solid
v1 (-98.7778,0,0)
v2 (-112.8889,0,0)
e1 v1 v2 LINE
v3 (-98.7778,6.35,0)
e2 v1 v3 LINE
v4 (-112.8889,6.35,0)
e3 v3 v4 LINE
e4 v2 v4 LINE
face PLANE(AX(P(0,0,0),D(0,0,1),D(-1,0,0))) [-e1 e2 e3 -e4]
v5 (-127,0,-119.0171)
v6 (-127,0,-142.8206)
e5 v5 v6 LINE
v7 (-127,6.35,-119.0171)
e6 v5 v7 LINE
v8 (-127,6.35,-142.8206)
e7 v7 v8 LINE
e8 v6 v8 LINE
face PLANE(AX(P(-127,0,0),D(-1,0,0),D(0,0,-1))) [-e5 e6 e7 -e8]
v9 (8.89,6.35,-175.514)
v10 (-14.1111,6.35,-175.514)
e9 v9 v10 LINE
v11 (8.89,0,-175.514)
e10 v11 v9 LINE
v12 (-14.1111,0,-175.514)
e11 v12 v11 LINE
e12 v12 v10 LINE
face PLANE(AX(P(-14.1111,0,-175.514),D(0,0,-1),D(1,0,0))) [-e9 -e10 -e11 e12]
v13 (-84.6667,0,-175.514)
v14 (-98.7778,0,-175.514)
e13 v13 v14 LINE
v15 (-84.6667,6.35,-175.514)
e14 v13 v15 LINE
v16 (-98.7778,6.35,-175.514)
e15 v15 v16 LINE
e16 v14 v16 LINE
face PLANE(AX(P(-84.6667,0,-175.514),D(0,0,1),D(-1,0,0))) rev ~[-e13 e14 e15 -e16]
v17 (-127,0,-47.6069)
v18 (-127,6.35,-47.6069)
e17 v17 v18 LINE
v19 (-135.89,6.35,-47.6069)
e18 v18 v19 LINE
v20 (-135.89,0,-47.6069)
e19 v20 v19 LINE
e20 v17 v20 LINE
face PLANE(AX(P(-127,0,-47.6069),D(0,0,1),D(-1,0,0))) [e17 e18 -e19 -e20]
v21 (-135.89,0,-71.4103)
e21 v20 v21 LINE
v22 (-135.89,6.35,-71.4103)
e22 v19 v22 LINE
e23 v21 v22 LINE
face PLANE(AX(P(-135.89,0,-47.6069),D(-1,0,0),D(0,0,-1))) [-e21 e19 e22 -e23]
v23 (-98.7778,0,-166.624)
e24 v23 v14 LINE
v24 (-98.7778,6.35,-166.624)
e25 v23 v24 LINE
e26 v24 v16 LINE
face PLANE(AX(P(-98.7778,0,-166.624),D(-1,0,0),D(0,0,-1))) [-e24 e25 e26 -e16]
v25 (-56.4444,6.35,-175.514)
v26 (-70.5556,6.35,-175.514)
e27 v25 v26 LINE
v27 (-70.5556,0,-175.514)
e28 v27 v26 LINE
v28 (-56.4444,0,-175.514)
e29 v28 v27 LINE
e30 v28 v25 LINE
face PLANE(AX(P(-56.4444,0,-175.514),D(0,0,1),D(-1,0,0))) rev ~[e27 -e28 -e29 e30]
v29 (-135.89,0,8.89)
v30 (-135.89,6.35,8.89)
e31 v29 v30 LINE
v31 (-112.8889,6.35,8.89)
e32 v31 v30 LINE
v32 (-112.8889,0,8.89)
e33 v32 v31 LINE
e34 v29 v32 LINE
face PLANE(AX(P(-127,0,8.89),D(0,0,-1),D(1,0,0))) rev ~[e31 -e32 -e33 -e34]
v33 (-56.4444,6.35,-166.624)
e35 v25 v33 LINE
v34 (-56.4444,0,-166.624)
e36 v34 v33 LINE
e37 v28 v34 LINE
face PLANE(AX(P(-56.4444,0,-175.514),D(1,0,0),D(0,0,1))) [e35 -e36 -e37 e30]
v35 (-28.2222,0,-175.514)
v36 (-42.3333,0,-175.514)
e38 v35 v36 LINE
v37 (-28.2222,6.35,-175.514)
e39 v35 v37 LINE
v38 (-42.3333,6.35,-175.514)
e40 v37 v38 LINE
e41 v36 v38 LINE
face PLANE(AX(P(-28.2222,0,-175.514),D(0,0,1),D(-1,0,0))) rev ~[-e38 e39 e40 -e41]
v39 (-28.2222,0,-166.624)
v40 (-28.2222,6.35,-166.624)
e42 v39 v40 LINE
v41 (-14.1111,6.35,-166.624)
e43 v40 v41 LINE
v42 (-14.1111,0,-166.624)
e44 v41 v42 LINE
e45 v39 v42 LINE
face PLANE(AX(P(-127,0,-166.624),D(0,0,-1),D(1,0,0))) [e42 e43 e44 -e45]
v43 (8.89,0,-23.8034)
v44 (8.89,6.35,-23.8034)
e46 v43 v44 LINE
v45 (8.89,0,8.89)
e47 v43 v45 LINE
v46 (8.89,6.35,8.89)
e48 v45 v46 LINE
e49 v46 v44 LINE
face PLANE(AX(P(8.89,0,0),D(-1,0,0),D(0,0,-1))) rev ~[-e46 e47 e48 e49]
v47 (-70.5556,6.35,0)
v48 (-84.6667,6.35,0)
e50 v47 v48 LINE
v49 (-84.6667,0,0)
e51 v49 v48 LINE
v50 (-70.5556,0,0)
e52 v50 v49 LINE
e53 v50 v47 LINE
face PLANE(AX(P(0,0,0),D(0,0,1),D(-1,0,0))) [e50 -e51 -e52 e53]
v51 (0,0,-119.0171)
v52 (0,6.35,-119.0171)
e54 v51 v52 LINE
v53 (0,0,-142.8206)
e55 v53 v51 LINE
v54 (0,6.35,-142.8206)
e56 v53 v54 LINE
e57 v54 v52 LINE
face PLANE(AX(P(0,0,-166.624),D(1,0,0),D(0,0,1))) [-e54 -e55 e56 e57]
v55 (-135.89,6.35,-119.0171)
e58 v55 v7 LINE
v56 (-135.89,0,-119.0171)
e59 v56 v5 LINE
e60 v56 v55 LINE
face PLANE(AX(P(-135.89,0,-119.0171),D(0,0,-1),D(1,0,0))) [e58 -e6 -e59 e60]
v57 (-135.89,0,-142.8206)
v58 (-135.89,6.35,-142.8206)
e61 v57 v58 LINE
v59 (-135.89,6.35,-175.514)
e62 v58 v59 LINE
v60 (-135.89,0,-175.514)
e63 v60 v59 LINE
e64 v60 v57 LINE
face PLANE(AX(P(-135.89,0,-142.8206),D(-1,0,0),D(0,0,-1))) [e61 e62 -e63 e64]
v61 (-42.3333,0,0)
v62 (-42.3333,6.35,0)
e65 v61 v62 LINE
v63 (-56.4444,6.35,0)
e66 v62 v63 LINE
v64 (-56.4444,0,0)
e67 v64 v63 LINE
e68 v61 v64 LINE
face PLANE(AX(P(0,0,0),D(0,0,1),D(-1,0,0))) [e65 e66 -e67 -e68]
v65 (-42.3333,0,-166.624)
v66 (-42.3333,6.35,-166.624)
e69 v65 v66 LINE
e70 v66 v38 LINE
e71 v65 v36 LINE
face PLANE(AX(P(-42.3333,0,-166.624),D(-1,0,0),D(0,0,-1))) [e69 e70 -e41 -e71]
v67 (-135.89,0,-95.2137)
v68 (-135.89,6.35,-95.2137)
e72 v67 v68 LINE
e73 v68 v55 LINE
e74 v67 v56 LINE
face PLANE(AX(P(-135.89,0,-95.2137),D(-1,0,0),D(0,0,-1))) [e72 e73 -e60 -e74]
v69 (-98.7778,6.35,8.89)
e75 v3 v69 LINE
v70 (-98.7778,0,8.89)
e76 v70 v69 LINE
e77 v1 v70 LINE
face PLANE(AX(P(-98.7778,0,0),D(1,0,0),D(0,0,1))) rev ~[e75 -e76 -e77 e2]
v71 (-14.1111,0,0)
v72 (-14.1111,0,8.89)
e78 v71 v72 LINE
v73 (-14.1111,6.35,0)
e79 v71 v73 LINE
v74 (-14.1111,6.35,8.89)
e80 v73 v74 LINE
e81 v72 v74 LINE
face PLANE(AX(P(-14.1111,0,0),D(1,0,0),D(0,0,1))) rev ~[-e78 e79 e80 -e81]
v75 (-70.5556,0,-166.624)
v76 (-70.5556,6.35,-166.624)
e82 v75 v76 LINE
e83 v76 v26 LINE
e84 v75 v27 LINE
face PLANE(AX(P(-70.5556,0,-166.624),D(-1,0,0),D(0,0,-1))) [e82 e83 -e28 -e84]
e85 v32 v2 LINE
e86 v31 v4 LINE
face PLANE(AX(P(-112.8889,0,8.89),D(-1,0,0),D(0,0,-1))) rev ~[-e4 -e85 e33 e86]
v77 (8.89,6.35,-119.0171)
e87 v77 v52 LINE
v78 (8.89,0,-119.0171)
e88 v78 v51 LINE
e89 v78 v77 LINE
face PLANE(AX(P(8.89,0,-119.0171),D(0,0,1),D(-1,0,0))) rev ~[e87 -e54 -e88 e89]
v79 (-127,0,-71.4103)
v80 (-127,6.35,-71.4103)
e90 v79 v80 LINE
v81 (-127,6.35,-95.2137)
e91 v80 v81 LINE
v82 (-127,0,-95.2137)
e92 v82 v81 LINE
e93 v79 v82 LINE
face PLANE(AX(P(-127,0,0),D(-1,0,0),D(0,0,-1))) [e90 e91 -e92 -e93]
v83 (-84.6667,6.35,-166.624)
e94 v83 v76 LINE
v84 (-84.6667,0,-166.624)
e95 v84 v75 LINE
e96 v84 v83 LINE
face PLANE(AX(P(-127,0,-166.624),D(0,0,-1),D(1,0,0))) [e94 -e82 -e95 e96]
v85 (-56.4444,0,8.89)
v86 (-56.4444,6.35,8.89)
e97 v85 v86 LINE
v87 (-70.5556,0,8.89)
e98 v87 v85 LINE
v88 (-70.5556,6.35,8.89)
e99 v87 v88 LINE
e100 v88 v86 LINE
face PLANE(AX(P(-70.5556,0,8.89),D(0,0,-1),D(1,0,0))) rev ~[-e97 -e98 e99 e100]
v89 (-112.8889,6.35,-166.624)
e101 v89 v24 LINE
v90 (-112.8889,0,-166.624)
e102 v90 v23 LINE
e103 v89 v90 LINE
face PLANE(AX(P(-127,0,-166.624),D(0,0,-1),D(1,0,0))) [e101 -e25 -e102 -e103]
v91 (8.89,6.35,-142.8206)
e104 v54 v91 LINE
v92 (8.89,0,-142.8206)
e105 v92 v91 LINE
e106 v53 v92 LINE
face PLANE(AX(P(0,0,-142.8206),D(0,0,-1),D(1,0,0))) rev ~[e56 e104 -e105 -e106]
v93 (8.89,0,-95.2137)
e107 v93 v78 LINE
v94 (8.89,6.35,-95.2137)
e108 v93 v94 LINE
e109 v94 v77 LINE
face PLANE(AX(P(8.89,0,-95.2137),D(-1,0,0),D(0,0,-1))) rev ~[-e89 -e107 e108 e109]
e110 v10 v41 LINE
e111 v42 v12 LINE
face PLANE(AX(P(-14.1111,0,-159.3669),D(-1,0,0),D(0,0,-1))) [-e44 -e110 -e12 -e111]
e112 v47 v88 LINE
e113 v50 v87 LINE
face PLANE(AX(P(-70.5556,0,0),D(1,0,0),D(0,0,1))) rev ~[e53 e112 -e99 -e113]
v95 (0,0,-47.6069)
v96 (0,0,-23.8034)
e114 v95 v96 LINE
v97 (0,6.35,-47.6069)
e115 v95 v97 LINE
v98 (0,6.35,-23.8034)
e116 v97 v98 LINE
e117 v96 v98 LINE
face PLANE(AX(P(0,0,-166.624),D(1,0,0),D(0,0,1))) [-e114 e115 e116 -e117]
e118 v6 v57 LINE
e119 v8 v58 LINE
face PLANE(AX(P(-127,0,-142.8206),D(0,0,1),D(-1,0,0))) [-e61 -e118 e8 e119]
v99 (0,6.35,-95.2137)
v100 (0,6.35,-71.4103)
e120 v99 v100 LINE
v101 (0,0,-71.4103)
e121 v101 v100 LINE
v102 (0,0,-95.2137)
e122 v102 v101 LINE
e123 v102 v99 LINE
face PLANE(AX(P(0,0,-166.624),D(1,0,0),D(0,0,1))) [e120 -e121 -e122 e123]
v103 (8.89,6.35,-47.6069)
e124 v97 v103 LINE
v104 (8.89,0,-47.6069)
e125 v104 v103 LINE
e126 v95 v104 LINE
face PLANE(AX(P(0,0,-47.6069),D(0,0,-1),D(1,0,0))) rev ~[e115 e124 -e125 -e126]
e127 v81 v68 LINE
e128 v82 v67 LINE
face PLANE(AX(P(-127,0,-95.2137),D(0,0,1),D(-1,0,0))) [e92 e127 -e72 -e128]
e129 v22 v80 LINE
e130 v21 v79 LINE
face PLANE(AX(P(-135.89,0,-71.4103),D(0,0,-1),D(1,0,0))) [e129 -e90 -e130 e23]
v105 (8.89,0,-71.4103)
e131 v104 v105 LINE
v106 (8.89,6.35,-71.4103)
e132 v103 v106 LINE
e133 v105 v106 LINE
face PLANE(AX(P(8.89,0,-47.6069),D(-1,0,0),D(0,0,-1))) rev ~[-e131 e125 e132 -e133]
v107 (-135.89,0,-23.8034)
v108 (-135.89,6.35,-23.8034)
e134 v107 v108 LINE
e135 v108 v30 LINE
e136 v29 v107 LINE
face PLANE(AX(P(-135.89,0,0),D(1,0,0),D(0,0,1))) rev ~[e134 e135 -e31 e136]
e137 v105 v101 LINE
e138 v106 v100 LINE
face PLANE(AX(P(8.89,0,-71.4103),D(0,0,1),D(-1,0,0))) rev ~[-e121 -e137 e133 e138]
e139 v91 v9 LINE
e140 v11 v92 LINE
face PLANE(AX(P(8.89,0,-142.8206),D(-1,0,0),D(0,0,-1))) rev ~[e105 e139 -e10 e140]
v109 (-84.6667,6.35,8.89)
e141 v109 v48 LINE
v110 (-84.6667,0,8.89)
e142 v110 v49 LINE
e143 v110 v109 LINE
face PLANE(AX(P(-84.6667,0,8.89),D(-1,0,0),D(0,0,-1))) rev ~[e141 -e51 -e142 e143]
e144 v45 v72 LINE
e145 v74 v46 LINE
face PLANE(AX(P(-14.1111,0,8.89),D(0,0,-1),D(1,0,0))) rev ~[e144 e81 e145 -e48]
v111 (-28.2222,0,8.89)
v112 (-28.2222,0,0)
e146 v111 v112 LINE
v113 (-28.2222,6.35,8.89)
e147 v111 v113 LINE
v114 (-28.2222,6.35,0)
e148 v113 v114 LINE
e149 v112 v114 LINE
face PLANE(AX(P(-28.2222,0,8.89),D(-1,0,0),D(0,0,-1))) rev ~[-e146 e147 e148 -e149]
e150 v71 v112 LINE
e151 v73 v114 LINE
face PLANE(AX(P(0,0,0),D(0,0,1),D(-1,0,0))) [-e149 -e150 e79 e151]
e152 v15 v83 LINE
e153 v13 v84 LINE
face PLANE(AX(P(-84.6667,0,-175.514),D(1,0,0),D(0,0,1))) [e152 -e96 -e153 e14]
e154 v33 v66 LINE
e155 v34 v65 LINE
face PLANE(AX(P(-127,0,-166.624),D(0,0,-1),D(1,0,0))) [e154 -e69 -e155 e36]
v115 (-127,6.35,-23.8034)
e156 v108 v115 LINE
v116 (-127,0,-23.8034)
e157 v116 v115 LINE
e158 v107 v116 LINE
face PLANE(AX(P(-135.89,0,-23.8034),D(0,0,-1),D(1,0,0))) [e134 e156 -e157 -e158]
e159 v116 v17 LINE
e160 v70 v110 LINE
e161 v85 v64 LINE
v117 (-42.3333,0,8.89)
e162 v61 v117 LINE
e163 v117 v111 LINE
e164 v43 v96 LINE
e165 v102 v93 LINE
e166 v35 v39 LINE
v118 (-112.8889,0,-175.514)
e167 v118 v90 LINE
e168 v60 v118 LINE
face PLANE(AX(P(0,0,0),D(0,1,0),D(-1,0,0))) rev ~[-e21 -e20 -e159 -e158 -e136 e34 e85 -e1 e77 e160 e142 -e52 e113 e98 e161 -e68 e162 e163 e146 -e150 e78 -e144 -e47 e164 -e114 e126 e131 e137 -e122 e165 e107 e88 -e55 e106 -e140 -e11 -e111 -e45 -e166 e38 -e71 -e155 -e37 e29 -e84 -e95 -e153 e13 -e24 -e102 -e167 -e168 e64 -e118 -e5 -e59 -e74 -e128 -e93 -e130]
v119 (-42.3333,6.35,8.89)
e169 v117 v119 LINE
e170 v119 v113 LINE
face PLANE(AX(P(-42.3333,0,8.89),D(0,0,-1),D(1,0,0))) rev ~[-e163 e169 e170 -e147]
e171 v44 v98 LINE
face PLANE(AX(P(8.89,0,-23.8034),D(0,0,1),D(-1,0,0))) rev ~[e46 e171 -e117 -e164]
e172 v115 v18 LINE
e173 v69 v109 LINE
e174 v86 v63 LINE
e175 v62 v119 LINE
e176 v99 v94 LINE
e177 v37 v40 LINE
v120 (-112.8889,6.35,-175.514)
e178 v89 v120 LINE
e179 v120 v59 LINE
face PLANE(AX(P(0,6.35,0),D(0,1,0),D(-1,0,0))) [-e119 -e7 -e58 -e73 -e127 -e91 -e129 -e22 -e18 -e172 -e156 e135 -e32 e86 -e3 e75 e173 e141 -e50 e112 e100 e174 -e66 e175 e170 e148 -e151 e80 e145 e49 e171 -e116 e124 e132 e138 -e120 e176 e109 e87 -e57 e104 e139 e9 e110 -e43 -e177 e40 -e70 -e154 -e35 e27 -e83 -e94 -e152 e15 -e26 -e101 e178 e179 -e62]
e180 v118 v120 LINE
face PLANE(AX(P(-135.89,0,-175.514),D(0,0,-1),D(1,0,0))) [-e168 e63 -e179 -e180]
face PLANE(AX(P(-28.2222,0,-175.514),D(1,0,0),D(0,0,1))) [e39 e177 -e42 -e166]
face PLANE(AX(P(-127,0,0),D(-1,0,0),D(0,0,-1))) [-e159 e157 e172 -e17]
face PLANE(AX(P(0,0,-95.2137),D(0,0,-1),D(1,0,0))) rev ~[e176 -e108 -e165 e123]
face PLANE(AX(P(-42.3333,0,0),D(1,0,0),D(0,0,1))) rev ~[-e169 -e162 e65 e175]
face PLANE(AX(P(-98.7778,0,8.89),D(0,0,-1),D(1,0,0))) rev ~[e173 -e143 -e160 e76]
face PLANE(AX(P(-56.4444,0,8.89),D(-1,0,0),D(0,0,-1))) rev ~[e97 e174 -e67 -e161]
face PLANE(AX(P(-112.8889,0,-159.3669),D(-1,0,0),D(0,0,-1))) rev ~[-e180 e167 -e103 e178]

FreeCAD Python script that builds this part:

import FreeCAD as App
import Part
import Sketcher
Q = App.Units.Quantity


def add_polygon(sketch, points):
    """Adds a closed chain of lines whose ends are joined by coincident constraints."""
    first, n = sketch.GeometryCount, len(points)
    for a, b in zip(points, points[1:] + points[:1]):
        sketch.addGeometry(Part.LineSegment(App.Vector(*a, 0), App.Vector(*b, 0)), False)
    for i in range(n):
        sketch.addConstraint(Sketcher.Constraint("Coincident", first + i, 2, first + (i + 1) % n, 1))

doc = App.newDocument("Part")
body = doc.addObject("PartDesign::Body", "Body")
body.AllowCompound = True

sketch1 = body.newObject("Sketcher::SketchObject", "Sketch")
sketch1.AttachmentSupport = (doc.getObject("XZ_Plane"), [""])
sketch1.MapMode = "FlatFace"
add_polygon(sketch1, [(0, -24), (0, 0), (-14, 0), (-14, 9), (9, 9), (9, -24)])
add_polygon(sketch1, [(0, -71), (0, -48), (9, -48), (9, -71)])
add_polygon(sketch1, [(-28, 9), (-28, 0), (-42, 0), (-42, 9)])
add_polygon(sketch1, [(0, -119), (0, -95), (9, -95), (9, -119)])
add_polygon(sketch1, [(-56, 9), (-56, 0), (-71, 0), (-71, 9)])
add_polygon(sketch1, [(0, -159), (0, -143), (9, -143), (9, -176), (-14, -176), (-14, -159)])
add_polygon(sketch1, [(-85, 9), (-85, 0), (-99, 0), (-99, 9)])
add_polygon(sketch1, [(-113, 9), (-113, 0), (-127, 0), (-127, -24), (-136, -24), (-136, 9)])
add_polygon(sketch1, [(-42, -167), (-28, -167), (-28, -176), (-42, -176)])
add_polygon(sketch1, [(-136, -48), (-127, -48), (-127, -71), (-136, -71)])
add_polygon(sketch1, [(-71, -167), (-56, -167), (-56, -176), (-71, -176)])
add_polygon(sketch1, [(-136, -95), (-127, -95), (-127, -119), (-136, -119)])
add_polygon(sketch1, [(-99, -167), (-85, -167), (-85, -176), (-99, -176)])
add_polygon(sketch1, [(-136, -143), (-127, -143), (-127, -159), (-113, -159), (-113, -176), (-136, -176)])
sketch1.addConstraint(Sketcher.Constraint("Vertical", 0))
sketch1.addConstraint(Sketcher.Constraint("Horizontal", 1))
sketch1.addConstraint(Sketcher.Constraint("Vertical", 2))
sketch1.addConstraint(Sketcher.Constraint("Horizontal", 3))
sketch1.addConstraint(Sketcher.Constraint("Vertical", 4))
sketch1.addConstraint(Sketcher.Constraint("Horizontal", 5))
sketch1.addConstraint(Sketcher.Constraint("Vertical", 6))
sketch1.addConstraint(Sketcher.Constraint("Horizontal", 7))
sketch1.addConstraint(Sketcher.Constraint("Vertical", 8))
sketch1.addConstraint(Sketcher.Constraint("Horizontal", 9))
sketch1.addConstraint(Sketcher.Constraint("Vertical", 10))
sketch1.addConstraint(Sketcher.Constraint("Horizontal", 11))
sketch1.addConstraint(Sketcher.Constraint("Vertical", 12))
sketch1.addConstraint(Sketcher.Constraint("Horizontal", 13))
sketch1.addConstraint(Sketcher.Constraint("Vertical", 14))
sketch1.addConstraint(Sketcher.Constraint("Horizontal", 15))
sketch1.addConstraint(Sketcher.Constraint("Vertical", 16))
sketch1.addConstraint(Sketcher.Constraint("Horizontal", 17))
sketch1.addConstraint(Sketcher.Constraint("Vertical", 18))
sketch1.addConstraint(Sketcher.Constraint("Horizontal", 19))
sketch1.addConstraint(Sketcher.Constraint("Vertical", 20))
sketch1.addConstraint(Sketcher.Constraint("Horizontal", 21))
sketch1.addConstraint(Sketcher.Constraint("Vertical", 22))
sketch1.addConstraint(Sketcher.Constraint("Horizontal", 23))
sketch1.addConstraint(Sketcher.Constraint("Vertical", 24))
sketch1.addConstraint(Sketcher.Constraint("Horizontal", 25))
sketch1.addConstraint(Sketcher.Constraint("Vertical", 26))
sketch1.addConstraint(Sketcher.Constraint("Horizontal", 27))
sketch1.addConstraint(Sketcher.Constraint("Vertical", 28))
sketch1.addConstraint(Sketcher.Constraint("Horizontal", 29))
sketch1.addConstraint(Sketcher.Constraint("Vertical", 30))
sketch1.addConstraint(Sketcher.Constraint("Horizontal", 31))
sketch1.addConstraint(Sketcher.Constraint("Vertical", 32))
sketch1.addConstraint(Sketcher.Constraint("Horizontal", 33))
sketch1.addConstraint(Sketcher.Constraint("Vertical", 34))
sketch1.addConstraint(Sketcher.Constraint("Horizontal", 35))
sketch1.addConstraint(Sketcher.Constraint("Vertical", 36))
sketch1.addConstraint(Sketcher.Constraint("Horizontal", 37))
sketch1.addConstraint(Sketcher.Constraint("Horizontal", 38))
sketch1.addConstraint(Sketcher.Constraint("Vertical", 39))
sketch1.addConstraint(Sketcher.Constraint("Horizontal", 40))
sketch1.addConstraint(Sketcher.Constraint("Vertical", 41))
sketch1.addConstraint(Sketcher.Constraint("Horizontal", 42))
sketch1.addConstraint(Sketcher.Constraint("Vertical", 43))
sketch1.addConstraint(Sketcher.Constraint("Horizontal", 44))
sketch1.addConstraint(Sketcher.Constraint("Vertical", 45))
sketch1.addConstraint(Sketcher.Constraint("Horizontal", 46))
sketch1.addConstraint(Sketcher.Constraint("Vertical", 47))
sketch1.addConstraint(Sketcher.Constraint("Horizontal", 48))
sketch1.addConstraint(Sketcher.Constraint("Vertical", 49))
sketch1.addConstraint(Sketcher.Constraint("Horizontal", 50))
sketch1.addConstraint(Sketcher.Constraint("Vertical", 51))
sketch1.addConstraint(Sketcher.Constraint("Horizontal", 52))
sketch1.addConstraint(Sketcher.Constraint("Vertical", 53))
sketch1.addConstraint(Sketcher.Constraint("Horizontal", 54))
sketch1.addConstraint(Sketcher.Constraint("Vertical", 55))
sketch1.addConstraint(Sketcher.Constraint("Horizontal", 56))
sketch1.addConstraint(Sketcher.Constraint("Vertical", 57))
sketch1.addConstraint(Sketcher.Constraint("Horizontal", 58))
sketch1.addConstraint(Sketcher.Constraint("Vertical", 59))
sketch1.addConstraint(Sketcher.Constraint("Horizontal", 60))
sketch1.addConstraint(Sketcher.Constraint("Vertical", 61))
sketch1.addConstraint(Sketcher.Constraint("Horizontal", 62))
sketch1.addConstraint(Sketcher.Constraint("Vertical", 63))
sketch1.addConstraint(Sketcher.Constraint("Coincident", 0, 2, -1, 1))
sketch1.addConstraint(Sketcher.Constraint("PointOnObject", 6, 2, -2))
sketch1.addConstraint(Sketcher.Constraint("PointOnObject", 10, 2, -1))
sketch1.addConstraint(Sketcher.Constraint("PointOnObject", 14, 2, -2))
sketch1.addConstraint(Sketcher.Constraint("PointOnObject", 18, 2, -1))
sketch1.addConstraint(Sketcher.Constraint("PointOnObject", 22, 2, -2))
sketch1.addConstraint(Sketcher.Constraint("PointOnObject", 28, 2, -1))
sketch1.addConstraint(Sketcher.Constraint("PointOnObject", 32, 2, -1))
sketch1.addConstraint(Sketcher.Constraint("Horizontal", 3, 2, 12, 2))
sketch1.addConstraint(Sketcher.Constraint("Horizontal", 13, 2, 20, 2))
sketch1.addConstraint(Sketcher.Constraint("Horizontal", 21, 2, 30, 2))
sketch1.addConstraint(Sketcher.Constraint("Horizontal", 5, 2, 34, 2))
sketch1.addConstraint(Sketcher.Constraint("Horizontal", 31, 2, 36, 2))
sketch1.addConstraint(Sketcher.Constraint("Horizontal", 25, 2, 39, 2))
sketch1.addConstraint(Sketcher.Constraint("Horizontal", 7, 2, 42, 2))
sketch1.addConstraint(Sketcher.Constraint("Horizontal", 9, 2, 43, 2))
sketch1.addConstraint(Sketcher.Constraint("Horizontal", 41, 2, 46, 2))
sketch1.addConstraint(Sketcher.Constraint("Horizontal", 40, 2, 47, 2))
sketch1.addConstraint(Sketcher.Constraint("Horizontal", 15, 2, 50, 2))
sketch1.addConstraint(Sketcher.Constraint("Horizontal", 17, 2, 51, 2))
sketch1.addConstraint(Sketcher.Constraint("Horizontal", 49, 2, 54, 2))
sketch1.addConstraint(Sketcher.Constraint("Horizontal", 48, 2, 55, 2))
sketch1.addConstraint(Sketcher.Constraint("Horizontal", 23, 2, 58, 2))
sketch1.addConstraint(Sketcher.Constraint("Horizontal", 27, 2, 59, 2))
sketch1.addConstraint(Sketcher.Constraint("Horizontal", 56, 2, 61, 2))
sketch1.addConstraint(Sketcher.Constraint("Vertical", 4, 2, 7, 2))
sketch1.addConstraint(Sketcher.Constraint("Vertical", 8, 2, 15, 2))
sketch1.addConstraint(Sketcher.Constraint("Vertical", 16, 2, 23, 2))
sketch1.addConstraint(Sketcher.Constraint("Vertical", 2, 2, 25, 2))
sketch1.addConstraint(Sketcher.Constraint("Vertical", 13, 2, 38, 2))
sketch1.addConstraint(Sketcher.Constraint("Vertical", 12, 2, 40, 2))
sketch1.addConstraint(Sketcher.Constraint("Vertical", 34, 2, 42, 2))
sketch1.addConstraint(Sketcher.Constraint("Vertical", 36, 2, 44, 2))
sketch1.addConstraint(Sketcher.Constraint("Vertical", 21, 2, 46, 2))
sketch1.addConstraint(Sketcher.Constraint("Vertical", 20, 2, 48, 2))
sketch1.addConstraint(Sketcher.Constraint("Vertical", 43, 2, 50, 2))
sketch1.addConstraint(Sketcher.Constraint("Vertical", 45, 2, 52, 2))
sketch1.addConstraint(Sketcher.Constraint("Vertical", 31, 2, 54, 2))
sketch1.addConstraint(Sketcher.Constraint("Vertical", 30, 2, 56, 2))
sketch1.addConstraint(Sketcher.Constraint("Vertical", 51, 2, 58, 2))
sketch1.addConstraint(Sketcher.Constraint("Vertical", 37, 2, 60, 2))
sketch1.addConstraint(Sketcher.Constraint("Vertical", 53, 2, 62, 2))
sketch1.addConstraint(Sketcher.Constraint("Equal", 1, 11))
sketch1.addConstraint(Sketcher.Constraint("Equal", 13, 19))
sketch1.addConstraint(Sketcher.Constraint("Equal", 27, 29))
sketch1.addConstraint(Sketcher.Constraint("Equal", 31, 33))
sketch1.addConstraint(Sketcher.Constraint("Equal", 23, 35))
sketch1.addConstraint(Sketcher.Constraint("Equal", 58, 2))
sketch1.addConstraint(Sketcher.Constraint("Equal", 0, 6))
sketch1.addConstraint(Sketcher.Constraint("Equal", 8, 14))
sketch1.addConstraint(Sketcher.Constraint("Equal", 4, 24))
sketch1.addConstraint(Sketcher.Constraint("Equal", 32, 39))
sketch1.addConstraint(Sketcher.Constraint("DistanceX", 33, 2, -1, 1, Q("5 in")))
sketch1.addConstraint(Sketcher.Constraint("DistanceX", 5, 2, 5, 1, Q("0.35 in")))
sketch1.addConstraint(Sketcher.Constraint("DistanceX", 1, 2, 1, 1, Q("14.111 mm")))
sketch1.addConstraint(Sketcher.Constraint("DistanceY", 0, 1, 0, 2, Q("23.8034 mm")))
sketch1.addConstraint(Sketcher.Constraint("DistanceY", 22, 1, 22, 2, Q("16.5463 mm")))
sketch1.addConstraint(Sketcher.Constraint("DistanceY", 24, 2, -1, 1, Q("6.91 in")))
sketch1.addConstraint(Sketcher.Constraint("DistanceX", 10, 2, -1, 1, Q("1.1111 in")))
sketch1.addConstraint(Sketcher.Constraint("DistanceX", 29, 2, -1, 1, Q("3.8889 in")))
sketch1.addConstraint(Sketcher.Constraint("DistanceY", 6, 2, -1, 1, Q("1.8742913 in")))
sketch1.addConstraint(Sketcher.Constraint("DistanceY", 14, 2, -1, 1, Q("95.2137 mm")))
sketch1.addConstraint(Sketcher.Constraint("DistanceX", 18, 2, -1, 1, Q("56.4444 mm")))
pad1 = body.newObject("PartDesign::Pad", "Pad")
pad1.Profile = sketch1
pad1.Length = Q("0.25 in")
pad1.Reversed = True

sketch2 = body.newObject("Sketcher::SketchObject", "Sketch001")
sketch2.AttachmentSupport = (doc.getObject("XZ_Plane"), [""])
sketch2.MapMode = "FlatFace"
add_polygon(sketch2, [(-127, 0), (0, 0), (0, -167), (-127, -167)])
sketch2.addConstraint(Sketcher.Constraint("Horizontal", 0))
sketch2.addConstraint(Sketcher.Constraint("Vertical", 1))
sketch2.addConstraint(Sketcher.Constraint("Horizontal", 2))
sketch2.addConstraint(Sketcher.Constraint("Vertical", 3))
sketch2.addConstraint(Sketcher.Constraint("Coincident", 0, 2, -1, 1))
sketch2.addConstraint(Sketcher.Constraint("DistanceX", 0, 1, 0, 2, Q("5 in")))
sketch2.addConstraint(Sketcher.Constraint("DistanceY", 1, 2, 1, 1, Q("6.56 in")))
pad2 = body.newObject("PartDesign::Pad", "Pad001")
pad2.Profile = sketch2
pad2.Length = Q("0.25 in")
pad2.Reversed = True

doc.recompute()
